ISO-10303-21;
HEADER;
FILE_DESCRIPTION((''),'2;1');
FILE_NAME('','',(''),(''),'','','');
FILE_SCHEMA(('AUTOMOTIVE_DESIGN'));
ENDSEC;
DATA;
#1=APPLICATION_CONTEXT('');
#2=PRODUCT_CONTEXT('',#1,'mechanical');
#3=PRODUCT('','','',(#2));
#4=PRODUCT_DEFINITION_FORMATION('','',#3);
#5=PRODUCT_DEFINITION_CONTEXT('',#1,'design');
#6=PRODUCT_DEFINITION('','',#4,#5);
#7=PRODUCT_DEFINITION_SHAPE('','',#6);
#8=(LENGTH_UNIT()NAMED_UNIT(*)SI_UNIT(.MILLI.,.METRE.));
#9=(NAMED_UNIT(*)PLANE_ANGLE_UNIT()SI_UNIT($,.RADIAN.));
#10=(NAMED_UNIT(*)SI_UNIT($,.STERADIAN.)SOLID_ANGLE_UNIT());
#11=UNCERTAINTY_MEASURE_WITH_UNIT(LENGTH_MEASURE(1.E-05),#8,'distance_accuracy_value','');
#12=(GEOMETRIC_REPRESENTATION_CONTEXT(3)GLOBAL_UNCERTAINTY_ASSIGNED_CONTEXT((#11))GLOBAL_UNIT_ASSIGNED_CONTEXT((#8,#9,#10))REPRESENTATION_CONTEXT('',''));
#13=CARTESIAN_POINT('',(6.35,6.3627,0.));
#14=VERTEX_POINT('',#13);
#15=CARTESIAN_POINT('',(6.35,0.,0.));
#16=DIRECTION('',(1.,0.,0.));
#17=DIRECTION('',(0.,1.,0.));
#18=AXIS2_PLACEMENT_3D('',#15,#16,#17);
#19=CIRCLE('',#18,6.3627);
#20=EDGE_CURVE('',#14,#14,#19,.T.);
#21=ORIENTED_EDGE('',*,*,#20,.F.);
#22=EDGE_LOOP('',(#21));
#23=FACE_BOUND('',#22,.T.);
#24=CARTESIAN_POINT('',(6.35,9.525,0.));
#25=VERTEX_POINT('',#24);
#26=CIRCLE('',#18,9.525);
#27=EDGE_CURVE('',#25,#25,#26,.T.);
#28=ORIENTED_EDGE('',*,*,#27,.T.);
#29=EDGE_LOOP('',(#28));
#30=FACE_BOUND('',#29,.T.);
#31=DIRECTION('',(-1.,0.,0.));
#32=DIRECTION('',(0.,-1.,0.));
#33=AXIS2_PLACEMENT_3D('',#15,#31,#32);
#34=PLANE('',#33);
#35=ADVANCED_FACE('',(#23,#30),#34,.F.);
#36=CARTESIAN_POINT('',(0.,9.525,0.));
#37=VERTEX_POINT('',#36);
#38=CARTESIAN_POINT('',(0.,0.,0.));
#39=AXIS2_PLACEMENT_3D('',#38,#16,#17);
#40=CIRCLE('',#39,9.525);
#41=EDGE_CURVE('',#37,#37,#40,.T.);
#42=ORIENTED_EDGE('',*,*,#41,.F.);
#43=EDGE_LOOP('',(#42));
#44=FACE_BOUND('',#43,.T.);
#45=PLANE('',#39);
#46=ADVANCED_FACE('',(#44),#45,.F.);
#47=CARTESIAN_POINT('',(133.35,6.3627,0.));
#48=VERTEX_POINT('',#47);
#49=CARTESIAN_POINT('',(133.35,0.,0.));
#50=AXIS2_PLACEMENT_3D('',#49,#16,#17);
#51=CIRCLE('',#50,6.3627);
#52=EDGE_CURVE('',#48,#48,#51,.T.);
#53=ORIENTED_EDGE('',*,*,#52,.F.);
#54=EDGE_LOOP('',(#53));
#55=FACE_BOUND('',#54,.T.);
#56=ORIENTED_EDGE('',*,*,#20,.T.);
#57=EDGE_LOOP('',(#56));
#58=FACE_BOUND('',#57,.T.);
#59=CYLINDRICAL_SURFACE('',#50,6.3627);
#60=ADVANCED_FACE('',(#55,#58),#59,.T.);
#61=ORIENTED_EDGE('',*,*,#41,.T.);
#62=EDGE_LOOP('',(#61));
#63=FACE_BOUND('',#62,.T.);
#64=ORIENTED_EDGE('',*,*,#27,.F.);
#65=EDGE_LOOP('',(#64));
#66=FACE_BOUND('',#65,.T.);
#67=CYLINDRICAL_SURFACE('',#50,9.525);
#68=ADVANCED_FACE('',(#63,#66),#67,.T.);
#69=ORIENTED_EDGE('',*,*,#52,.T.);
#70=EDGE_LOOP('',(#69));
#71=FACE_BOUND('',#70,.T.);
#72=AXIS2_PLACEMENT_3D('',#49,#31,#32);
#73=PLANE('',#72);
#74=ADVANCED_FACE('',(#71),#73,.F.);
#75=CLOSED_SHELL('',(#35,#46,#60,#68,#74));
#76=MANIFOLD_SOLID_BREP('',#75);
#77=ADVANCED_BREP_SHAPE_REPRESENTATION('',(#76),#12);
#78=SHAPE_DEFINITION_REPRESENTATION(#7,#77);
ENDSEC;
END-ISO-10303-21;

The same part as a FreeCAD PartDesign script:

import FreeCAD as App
import Part
import Sketcher
Q = App.Units.Quantity


def add_polygon(sketch, points):
    """Adds a closed chain of lines whose ends are joined by coincident constraints."""
    first, n = sketch.GeometryCount, len(points)
    for a, b in zip(points, points[1:] + points[:1]):
        sketch.addGeometry(Part.LineSegment(App.Vector(*a, 0), App.Vector(*b, 0)), False)
    for i in range(n):
        sketch.addConstraint(Sketcher.Constraint("Coincident", first + i, 2, first + (i + 1) % n, 1))

doc = App.newDocument("Part")
body = doc.addObject("PartDesign::Body", "Body")

# Sketch on XY plane
sketch1 = body.newObject("Sketcher::SketchObject", "Sketch")
sketch1.AttachmentSupport = (doc.getObject("XY_Plane"), [""])
sketch1.MapMode = "FlatFace"
add_polygon(sketch1, [(0, 0), (133.3, 0), (133.3, 6.4), (6.3, 6.4), (6.3, 9.5), (0, 9.5)])  # lines 0-5
sketch1.addConstraint(Sketcher.Constraint("Horizontal", 0))
sketch1.addConstraint(Sketcher.Constraint("Vertical", 1))
sketch1.addConstraint(Sketcher.Constraint("Horizontal", 2))
sketch1.addConstraint(Sketcher.Constraint("Vertical", 3))
sketch1.addConstraint(Sketcher.Constraint("Horizontal", 4))
sketch1.addConstraint(Sketcher.Constraint("Vertical", 5))
sketch1.addConstraint(Sketcher.Constraint("Coincident", 5, 2, -1, 1))
sketch1.addConstraint(Sketcher.Constraint("DistanceX", 2, 2, 2, 1, Q("5 in")))
sketch1.addConstraint(Sketcher.Constraint("DistanceX", 0, 1, 0, 2, Q("5.25 in")))
sketch1.addConstraint(Sketcher.Constraint("DistanceY", 5, 2, 5, 1, Q("0.375 in")))
sketch1.addConstraint(Sketcher.Constraint("DistanceY", 1, 1, 1, 2, Q("0.2505 in")))
revolution = body.newObject("PartDesign::Revolution", "Revolution")
revolution.Profile = sketch1
revolution.ReferenceAxis = (sketch1, ["H_Axis"])
revolution.Angle = 360

doc.recompute()
